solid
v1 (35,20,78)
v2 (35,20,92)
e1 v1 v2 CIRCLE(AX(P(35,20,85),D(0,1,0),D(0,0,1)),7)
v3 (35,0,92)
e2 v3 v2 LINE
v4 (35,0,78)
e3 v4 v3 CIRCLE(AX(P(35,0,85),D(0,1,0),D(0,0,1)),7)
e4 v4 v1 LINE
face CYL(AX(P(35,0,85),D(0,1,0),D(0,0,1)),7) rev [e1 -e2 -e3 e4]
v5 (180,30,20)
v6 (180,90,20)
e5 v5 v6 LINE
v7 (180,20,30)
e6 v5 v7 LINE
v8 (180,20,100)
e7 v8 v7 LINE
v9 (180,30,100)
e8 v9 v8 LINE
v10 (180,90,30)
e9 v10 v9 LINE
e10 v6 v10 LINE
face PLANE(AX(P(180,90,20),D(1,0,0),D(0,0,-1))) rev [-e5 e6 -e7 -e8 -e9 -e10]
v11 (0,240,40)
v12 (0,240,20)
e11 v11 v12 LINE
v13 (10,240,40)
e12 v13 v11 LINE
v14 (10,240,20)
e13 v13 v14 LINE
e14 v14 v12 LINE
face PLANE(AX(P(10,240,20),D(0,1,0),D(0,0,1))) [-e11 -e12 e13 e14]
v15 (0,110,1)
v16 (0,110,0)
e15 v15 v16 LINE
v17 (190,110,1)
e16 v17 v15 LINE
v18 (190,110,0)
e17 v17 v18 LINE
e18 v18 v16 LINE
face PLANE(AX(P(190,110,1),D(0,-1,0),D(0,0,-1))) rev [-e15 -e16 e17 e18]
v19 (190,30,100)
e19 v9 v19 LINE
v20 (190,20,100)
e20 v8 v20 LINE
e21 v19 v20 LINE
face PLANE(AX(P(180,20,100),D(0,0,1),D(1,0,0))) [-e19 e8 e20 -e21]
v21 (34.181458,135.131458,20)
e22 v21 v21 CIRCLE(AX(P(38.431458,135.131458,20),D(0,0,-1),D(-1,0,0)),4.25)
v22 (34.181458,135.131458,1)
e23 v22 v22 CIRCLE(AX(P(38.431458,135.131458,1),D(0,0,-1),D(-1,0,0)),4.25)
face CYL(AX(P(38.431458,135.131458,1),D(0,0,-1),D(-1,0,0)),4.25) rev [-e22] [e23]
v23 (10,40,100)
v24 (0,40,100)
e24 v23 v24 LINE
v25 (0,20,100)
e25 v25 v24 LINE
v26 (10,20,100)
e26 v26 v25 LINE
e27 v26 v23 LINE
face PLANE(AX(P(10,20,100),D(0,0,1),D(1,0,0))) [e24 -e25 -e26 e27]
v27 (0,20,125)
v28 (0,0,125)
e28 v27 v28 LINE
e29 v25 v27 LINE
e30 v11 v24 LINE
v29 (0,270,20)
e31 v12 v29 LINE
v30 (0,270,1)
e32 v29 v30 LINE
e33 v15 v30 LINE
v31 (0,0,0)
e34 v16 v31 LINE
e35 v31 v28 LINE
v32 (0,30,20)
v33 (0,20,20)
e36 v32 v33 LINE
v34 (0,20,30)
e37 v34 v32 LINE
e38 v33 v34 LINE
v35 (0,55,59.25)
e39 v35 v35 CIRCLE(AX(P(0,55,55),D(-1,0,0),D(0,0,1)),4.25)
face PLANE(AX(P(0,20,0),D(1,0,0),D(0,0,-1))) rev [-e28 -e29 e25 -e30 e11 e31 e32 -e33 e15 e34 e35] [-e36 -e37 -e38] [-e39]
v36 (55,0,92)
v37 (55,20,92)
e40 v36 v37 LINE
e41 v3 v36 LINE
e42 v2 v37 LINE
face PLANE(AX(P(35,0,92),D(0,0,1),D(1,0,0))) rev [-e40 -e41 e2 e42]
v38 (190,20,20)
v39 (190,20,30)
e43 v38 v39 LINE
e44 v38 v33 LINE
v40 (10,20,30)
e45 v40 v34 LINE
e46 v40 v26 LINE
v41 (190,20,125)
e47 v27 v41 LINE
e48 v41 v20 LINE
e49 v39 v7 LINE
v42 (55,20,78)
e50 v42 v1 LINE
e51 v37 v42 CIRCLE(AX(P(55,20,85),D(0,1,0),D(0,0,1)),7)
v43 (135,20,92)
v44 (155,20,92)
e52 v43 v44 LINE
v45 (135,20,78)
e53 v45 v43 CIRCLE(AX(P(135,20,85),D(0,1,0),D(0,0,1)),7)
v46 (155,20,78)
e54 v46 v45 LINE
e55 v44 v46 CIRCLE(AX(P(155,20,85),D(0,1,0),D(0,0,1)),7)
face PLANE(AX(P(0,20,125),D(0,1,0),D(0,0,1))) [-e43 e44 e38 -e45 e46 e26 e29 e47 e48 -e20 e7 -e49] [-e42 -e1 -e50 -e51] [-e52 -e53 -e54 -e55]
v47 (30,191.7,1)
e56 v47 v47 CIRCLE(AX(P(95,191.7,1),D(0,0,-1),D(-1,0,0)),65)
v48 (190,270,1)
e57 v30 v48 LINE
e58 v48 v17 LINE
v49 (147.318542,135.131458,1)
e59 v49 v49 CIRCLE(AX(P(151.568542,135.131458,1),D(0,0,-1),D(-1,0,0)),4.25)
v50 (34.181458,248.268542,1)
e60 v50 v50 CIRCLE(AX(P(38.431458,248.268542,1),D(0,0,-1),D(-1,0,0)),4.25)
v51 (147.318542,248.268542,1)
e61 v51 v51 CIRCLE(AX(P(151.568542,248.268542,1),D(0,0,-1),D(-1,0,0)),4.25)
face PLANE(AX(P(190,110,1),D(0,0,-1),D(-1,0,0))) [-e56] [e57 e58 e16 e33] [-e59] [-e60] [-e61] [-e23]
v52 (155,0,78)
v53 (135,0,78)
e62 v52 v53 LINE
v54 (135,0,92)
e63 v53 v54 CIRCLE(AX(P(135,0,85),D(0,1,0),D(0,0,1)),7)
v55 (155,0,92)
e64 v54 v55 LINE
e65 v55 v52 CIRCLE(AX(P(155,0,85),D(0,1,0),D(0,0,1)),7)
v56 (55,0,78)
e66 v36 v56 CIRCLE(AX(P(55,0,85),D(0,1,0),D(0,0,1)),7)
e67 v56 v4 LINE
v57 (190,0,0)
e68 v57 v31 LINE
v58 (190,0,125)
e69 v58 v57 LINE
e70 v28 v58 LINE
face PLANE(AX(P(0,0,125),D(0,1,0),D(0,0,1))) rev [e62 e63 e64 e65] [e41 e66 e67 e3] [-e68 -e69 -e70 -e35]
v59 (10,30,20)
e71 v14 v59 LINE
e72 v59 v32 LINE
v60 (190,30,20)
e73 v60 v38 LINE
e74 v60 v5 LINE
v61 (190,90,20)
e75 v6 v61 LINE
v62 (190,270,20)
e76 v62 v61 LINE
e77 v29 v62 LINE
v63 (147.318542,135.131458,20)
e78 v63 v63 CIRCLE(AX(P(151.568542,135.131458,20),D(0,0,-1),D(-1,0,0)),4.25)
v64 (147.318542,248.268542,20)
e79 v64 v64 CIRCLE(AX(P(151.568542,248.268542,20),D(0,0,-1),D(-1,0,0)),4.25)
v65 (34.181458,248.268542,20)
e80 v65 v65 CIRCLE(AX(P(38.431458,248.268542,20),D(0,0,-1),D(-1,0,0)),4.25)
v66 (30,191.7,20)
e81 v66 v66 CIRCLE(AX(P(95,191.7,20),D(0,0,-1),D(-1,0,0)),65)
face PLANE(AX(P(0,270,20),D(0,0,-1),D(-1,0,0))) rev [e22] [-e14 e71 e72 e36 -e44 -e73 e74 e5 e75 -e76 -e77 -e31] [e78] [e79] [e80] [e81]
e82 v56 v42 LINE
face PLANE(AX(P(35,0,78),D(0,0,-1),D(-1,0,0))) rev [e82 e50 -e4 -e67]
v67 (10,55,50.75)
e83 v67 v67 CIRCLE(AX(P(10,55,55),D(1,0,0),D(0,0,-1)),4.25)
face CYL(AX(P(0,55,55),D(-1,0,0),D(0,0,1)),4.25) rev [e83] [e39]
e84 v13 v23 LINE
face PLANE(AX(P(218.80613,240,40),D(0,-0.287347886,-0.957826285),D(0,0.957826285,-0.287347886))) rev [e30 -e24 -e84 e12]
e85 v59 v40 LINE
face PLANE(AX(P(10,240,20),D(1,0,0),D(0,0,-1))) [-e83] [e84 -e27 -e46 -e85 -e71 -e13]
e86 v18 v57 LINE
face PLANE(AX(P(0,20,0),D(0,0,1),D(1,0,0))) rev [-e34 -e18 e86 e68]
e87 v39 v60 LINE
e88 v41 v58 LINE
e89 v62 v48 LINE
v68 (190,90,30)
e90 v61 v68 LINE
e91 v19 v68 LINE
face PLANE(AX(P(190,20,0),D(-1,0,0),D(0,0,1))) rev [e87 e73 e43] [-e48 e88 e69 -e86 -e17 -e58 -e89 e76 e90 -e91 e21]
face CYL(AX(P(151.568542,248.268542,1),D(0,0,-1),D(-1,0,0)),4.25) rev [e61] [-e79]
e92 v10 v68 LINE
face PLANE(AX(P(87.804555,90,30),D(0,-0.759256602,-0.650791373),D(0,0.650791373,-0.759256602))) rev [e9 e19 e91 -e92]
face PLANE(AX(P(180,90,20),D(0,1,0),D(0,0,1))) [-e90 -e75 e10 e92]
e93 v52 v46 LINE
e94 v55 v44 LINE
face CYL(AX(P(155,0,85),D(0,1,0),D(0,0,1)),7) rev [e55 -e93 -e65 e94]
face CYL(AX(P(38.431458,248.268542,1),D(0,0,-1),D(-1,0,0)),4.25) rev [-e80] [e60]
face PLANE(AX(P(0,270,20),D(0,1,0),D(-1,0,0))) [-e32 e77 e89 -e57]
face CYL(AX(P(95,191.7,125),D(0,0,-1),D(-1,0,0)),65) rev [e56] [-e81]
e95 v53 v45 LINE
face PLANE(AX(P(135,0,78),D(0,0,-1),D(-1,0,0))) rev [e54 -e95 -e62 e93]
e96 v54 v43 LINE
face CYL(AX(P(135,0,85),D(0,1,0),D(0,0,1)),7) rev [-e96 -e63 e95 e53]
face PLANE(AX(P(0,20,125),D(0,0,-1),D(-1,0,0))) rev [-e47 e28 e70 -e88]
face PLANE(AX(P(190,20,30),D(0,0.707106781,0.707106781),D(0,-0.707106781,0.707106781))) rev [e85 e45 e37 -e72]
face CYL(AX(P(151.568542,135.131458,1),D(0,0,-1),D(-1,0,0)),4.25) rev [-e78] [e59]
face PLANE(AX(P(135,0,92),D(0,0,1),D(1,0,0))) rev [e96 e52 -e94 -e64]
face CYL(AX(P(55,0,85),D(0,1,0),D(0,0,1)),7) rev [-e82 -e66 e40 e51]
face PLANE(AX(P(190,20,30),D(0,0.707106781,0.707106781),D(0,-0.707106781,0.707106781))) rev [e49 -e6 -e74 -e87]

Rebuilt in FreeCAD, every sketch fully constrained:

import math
import FreeCAD as App
import Part
import Sketcher
from FreeCAD import Vector
Q = App.Units.Quantity


def add_polygon(sketch, points):
    """Adds a closed chain of lines whose ends are joined by coincident constraints."""
    first, n = sketch.GeometryCount, len(points)
    for a, b in zip(points, points[1:] + points[:1]):
        sketch.addGeometry(Part.LineSegment(App.Vector(*a, 0), App.Vector(*b, 0)), False)
    for i in range(n):
        sketch.addConstraint(Sketcher.Constraint("Coincident", first + i, 2, first + (i + 1) % n, 1))

doc = App.newDocument("Part")
body = doc.addObject("PartDesign::Body", "Body")

sketch1 = body.newObject("Sketcher::SketchObject", "Sketch")
sketch1.AttachmentSupport = (doc.getObject("XZ_Plane"), [""])
sketch1.MapMode = "FlatFace"
add_polygon(sketch1, [(0, 0), (0, 125), (190, 125), (190, 0)])
sketch1.addConstraint(Sketcher.Constraint("Vertical", 0))
sketch1.addConstraint(Sketcher.Constraint("Horizontal", 1))
sketch1.addConstraint(Sketcher.Constraint("Vertical", 2))
sketch1.addConstraint(Sketcher.Constraint("Horizontal", 3))
sketch1.addConstraint(Sketcher.Constraint("Coincident", 3, 2, -1, 1))
sketch1.addConstraint(Sketcher.Constraint("DistanceX", 1, 1, 1, 2, Q("190 mm")))
sketch1.addConstraint(Sketcher.Constraint("DistanceY", 0, 1, 0, 2, Q("125 mm")))
pad1 = body.newObject("PartDesign::Pad", "Pad")
pad1.Profile = sketch1
pad1.Length = 20
pad1.Reversed = True

sketch2 = body.newObject("Sketcher::SketchObject", "Sketch001")
sketch2.AttachmentSupport = (doc.getObject("XY_Plane"), [""])
sketch2.MapMode = "FlatFace"
add_polygon(sketch2, [(190, 270), (190, 20), (0, 20), (0, 270)])
sketch2.addConstraint(Sketcher.Constraint("Vertical", 0))
sketch2.addConstraint(Sketcher.Constraint("Horizontal", 1))
sketch2.addConstraint(Sketcher.Constraint("Vertical", 2))
sketch2.addConstraint(Sketcher.Constraint("Horizontal", 3))
sketch2.addConstraint(Sketcher.Constraint("PointOnObject", 1, 2, -2))
sketch2.addConstraint(Sketcher.Constraint("DistanceX", 1, 2, 1, 1, Q("190 mm")))
sketch2.addConstraint(Sketcher.Constraint("DistanceY", 0, 2, 0, 1, Q("250 mm")))
sketch2.addConstraint(Sketcher.Constraint("DistanceY", -1, 1, 0, 2, Q("20 mm")))
pad2 = body.newObject("PartDesign::Pad", "Pad001")
pad2.Profile = sketch2
pad2.Length = 20

sketch3 = body.newObject("Sketcher::SketchObject", "Sketch002")
sketch3.AttachmentSupport = (doc.getObject("YZ_Plane"), [""])
sketch3.MapMode = "FlatFace"
add_polygon(sketch3, [(240, 20), (20, 20), (20, 100), (240, 100)])
sketch3.addConstraint(Sketcher.Constraint("Horizontal", 0))
sketch3.addConstraint(Sketcher.Constraint("Vertical", 1))
sketch3.addConstraint(Sketcher.Constraint("Horizontal", 2))
sketch3.addConstraint(Sketcher.Constraint("Vertical", 3))
sketch3.addConstraint(Sketcher.Constraint("DistanceX", 0, 2, 0, 1, Q("220 mm")))
sketch3.addConstraint(Sketcher.Constraint("DistanceY", 1, 1, 1, 2, Q("80 mm")))
sketch3.addConstraint(Sketcher.Constraint("DistanceX", -1, 1, 0, 2, Q("20 mm")))
sketch3.addConstraint(Sketcher.Constraint("DistanceY", -1, 1, 0, 2, Q("20 mm")))
pad3 = body.newObject("PartDesign::Pad", "Pad002")
pad3.Profile = sketch3
pad3.Length = 10

sketch4 = body.newObject("Sketcher::SketchObject", "Sketch003")
sketch4.AttachmentSupport = (doc.getObject("YZ_Plane"), [""])
sketch4.MapMode = "FlatFace"
sketch4.AttachmentOffset = App.Placement(Vector(0, 0, 190), App.Rotation())
add_polygon(sketch4, [(90, 100), (20, 100), (20, 20), (90, 20)])
sketch4.addConstraint(Sketcher.Constraint("Horizontal", 0))
sketch4.addConstraint(Sketcher.Constraint("Vertical", 1))
sketch4.addConstraint(Sketcher.Constraint("Horizontal", 2))
sketch4.addConstraint(Sketcher.Constraint("Vertical", 3))
sketch4.addConstraint(Sketcher.Constraint("DistanceX", 0, 2, 0, 1, Q("70 mm")))
sketch4.addConstraint(Sketcher.Constraint("DistanceY", 1, 2, 1, 1, Q("80 mm")))
sketch4.addConstraint(Sketcher.Constraint("DistanceX", -1, 1, 0, 2, Q("20 mm")))
sketch4.addConstraint(Sketcher.Constraint("DistanceY", -1, 1, 0, 2, Q("100 mm")))
pad4 = body.newObject("PartDesign::Pad", "Pad003")
pad4.Profile = sketch4
pad4.Length = 10
pad4.Reversed = True

sketch5 = body.newObject("Sketcher::SketchObject", "Sketch004")
sketch5.AttachmentSupport = (doc.getObject("YZ_Plane"), [""])
sketch5.MapMode = "FlatFace"
add_polygon(sketch5, [(30, 20), (20, 20), (20, 30)])
sketch5.addConstraint(Sketcher.Constraint("Horizontal", 0))
sketch5.addConstraint(Sketcher.Constraint("Vertical", 1))
sketch5.addConstraint(Sketcher.Constraint("Equal", 0, 1))
sketch5.addConstraint(Sketcher.Constraint("DistanceX", 0, 2, 0, 1, Q("10 mm")))
sketch5.addConstraint(Sketcher.Constraint("DistanceX", -1, 1, 0, 2, Q("20 mm")))
sketch5.addConstraint(Sketcher.Constraint("DistanceY", -1, 1, 0, 2, Q("20 mm")))
pocket1 = body.newObject("PartDesign::Pocket", "Pocket")
pocket1.Profile = sketch5
pocket1.Type = "ThroughAll"
pocket1.Reversed = True

sketch6 = body.newObject("Sketcher::SketchObject", "Sketch005")
sketch6.AttachmentSupport = (doc.getObject("YZ_Plane"), [""])
sketch6.MapMode = "FlatFace"
add_polygon(sketch6, [(240, 40), (40, 100), (240, 100)])
sketch6.addConstraint(Sketcher.Constraint("Horizontal", 1))
sketch6.addConstraint(Sketcher.Constraint("Vertical", 2))
sketch6.addConstraint(Sketcher.Constraint("DistanceX", 1, 1, 1, 2, Q("200 mm")))
sketch6.addConstraint(Sketcher.Constraint("DistanceY", 2, 2, 2, 1, Q("60 mm")))
sketch6.addConstraint(Sketcher.Constraint("DistanceX", -1, 1, 0, 2, Q("40 mm")))
sketch6.addConstraint(Sketcher.Constraint("DistanceY", -1, 1, 0, 2, Q("100 mm")))
pocket2 = body.newObject("PartDesign::Pocket", "Pocket001")
pocket2.Profile = sketch6
pocket2.Length = 10
pocket2.Reversed = True

sketch7 = body.newObject("Sketcher::SketchObject", "Sketch006")
sketch7.AttachmentSupport = (doc.getObject("YZ_Plane"), [""])
sketch7.MapMode = "FlatFace"
sketch7.AttachmentOffset = App.Placement(Vector(0, 0, 190), App.Rotation())
add_polygon(sketch7, [(90, 30), (90, 100), (30, 100)])
sketch7.addConstraint(Sketcher.Constraint("Vertical", 0))
sketch7.addConstraint(Sketcher.Constraint("Horizontal", 1))
sketch7.addConstraint(Sketcher.Constraint("DistanceX", 1, 2, 1, 1, Q("60 mm")))
sketch7.addConstraint(Sketcher.Constraint("DistanceY", 0, 1, 0, 2, Q("70 mm")))
sketch7.addConstraint(Sketcher.Constraint("DistanceX", -1, 1, 0, 2, Q("90 mm")))
sketch7.addConstraint(Sketcher.Constraint("DistanceY", -1, 1, 0, 2, Q("100 mm")))
pocket3 = body.newObject("PartDesign::Pocket", "Pocket002")
pocket3.Profile = sketch7
pocket3.Length = 10

sketch8 = body.newObject("Sketcher::SketchObject", "Sketch007")
sketch8.AttachmentSupport = (doc.getObject("XY_Plane"), [""])
sketch8.MapMode = "FlatFace"
add_polygon(sketch8, [(190, 270), (190, 110), (0, 110), (0, 270)])
sketch8.addConstraint(Sketcher.Constraint("Vertical", 0))
sketch8.addConstraint(Sketcher.Constraint("Horizontal", 1))
sketch8.addConstraint(Sketcher.Constraint("Vertical", 2))
sketch8.addConstraint(Sketcher.Constraint("Horizontal", 3))
sketch8.addConstraint(Sketcher.Constraint("PointOnObject", 1, 2, -2))
sketch8.addConstraint(Sketcher.Constraint("DistanceX", 1, 2, 1, 1, Q("190 mm")))
sketch8.addConstraint(Sketcher.Constraint("DistanceY", 0, 2, 0, 1, Q("160 mm")))
sketch8.addConstraint(Sketcher.Constraint("DistanceY", -1, 1, 0, 2, Q("110 mm")))
pocket4 = body.newObject("PartDesign::Pocket", "Pocket003")
pocket4.Profile = sketch8
pocket4.Length = 1
pocket4.Reversed = True

sketch9 = body.newObject("Sketcher::SketchObject", "Sketch008")
sketch9.AttachmentSupport = (doc.getObject("XY_Plane"), [""])
sketch9.MapMode = "FlatFace"
sketch9.AttachmentOffset = App.Placement(Vector(0, 0, 1), App.Rotation())
sketch9.addGeometry(Part.Circle(Vector(95, 191.7, 0), Vector(0, 0, 1), 65), False)
sketch9.addConstraint(Sketcher.Constraint("Diameter", 0, Q("130 mm")))
sketch9.addConstraint(Sketcher.Constraint("DistanceX", -1, 1, 0, 3, Q("95 mm")))
sketch9.addConstraint(Sketcher.Constraint("DistanceY", -1, 1, 0, 3, Q("191.7 mm")))
pocket5 = body.newObject("PartDesign::Pocket", "Pocket004")
pocket5.Profile = sketch9
pocket5.Type = "ThroughAll"
pocket5.Reversed = True

sketch10 = body.newObject("Sketcher::SketchObject", "Sketch009")
sketch10.AttachmentSupport = (doc.getObject("XZ_Plane"), [""])
sketch10.MapMode = "FlatFace"
sketch10.AttachmentOffset = App.Placement(Vector(0, 0, -20), App.Rotation())
sketch10.addGeometry(Part.LineSegment(Vector(55, 78, 0), Vector(35, 78, 0)), False)
sketch10.addGeometry(Part.ArcOfCircle(Part.Circle(Vector(35, 85, 0), Vector(0, 0, 1), 7), math.radians(90), math.radians(270)), False)
sketch10.addGeometry(Part.LineSegment(Vector(35, 92, 0), Vector(55, 92, 0)), False)
sketch10.addGeometry(Part.ArcOfCircle(Part.Circle(Vector(55, 85, 0), Vector(0, 0, 1), 7), math.radians(-90), math.radians(90)), False)
sketch10.addGeometry(Part.LineSegment(Vector(155, 78, 0), Vector(135, 78, 0)), False)
sketch10.addGeometry(Part.ArcOfCircle(Part.Circle(Vector(135, 85, 0), Vector(0, 0, 1), 7), math.radians(90), math.radians(270)), False)
sketch10.addGeometry(Part.LineSegment(Vector(135, 92, 0), Vector(155, 92, 0)), False)
sketch10.addGeometry(Part.ArcOfCircle(Part.Circle(Vector(155, 85, 0), Vector(0, 0, 1), 7), math.radians(-90), math.radians(90)), False)
sketch10.addConstraint(Sketcher.Constraint("Tangent", 0, 2, 1, 2))
sketch10.addConstraint(Sketcher.Constraint("Tangent", 1, 1, 2, 1))
sketch10.addConstraint(Sketcher.Constraint("Tangent", 2, 2, 3, 2))
sketch10.addConstraint(Sketcher.Constraint("Tangent", 3, 1, 0, 1))
sketch10.addConstraint(Sketcher.Constraint("Tangent", 4, 2, 5, 2))
sketch10.addConstraint(Sketcher.Constraint("Tangent", 5, 1, 6, 1))
sketch10.addConstraint(Sketcher.Constraint("Tangent", 6, 2, 7, 2))
sketch10.addConstraint(Sketcher.Constraint("Tangent", 7, 1, 4, 1))
sketch10.addConstraint(Sketcher.Constraint("Horizontal", 0))
sketch10.addConstraint(Sketcher.Constraint("Horizontal", 2))
sketch10.addConstraint(Sketcher.Constraint("Horizontal", 4))
sketch10.addConstraint(Sketcher.Constraint("Horizontal", 6))
sketch10.addConstraint(Sketcher.Constraint("Equal", 3, 5))
sketch10.addConstraint(Sketcher.Constraint("Horizontal", 3, 3, 5, 3))
sketch10.addConstraint(Sketcher.Constraint("Equal", 2, 4))
sketch10.addConstraint(Sketcher.Constraint("Radius", 1, Q("7 mm")))
sketch10.addConstraint(Sketcher.Constraint("DistanceX", 0, 2, 0, 1, Q("20 mm")))
sketch10.addConstraint(Sketcher.Constraint("DistanceX", -1, 1, 1, 3, Q("35 mm")))
sketch10.addConstraint(Sketcher.Constraint("DistanceY", -1, 1, 1, 3, Q("85 mm")))
sketch10.addConstraint(Sketcher.Constraint("DistanceX", -1, 1, 5, 3, Q("135 mm")))
pocket6 = body.newObject("PartDesign::Pocket", "Pocket005")
pocket6.Profile = sketch10
pocket6.Type = "ThroughAll"
pocket6.Reversed = True

sketch11 = body.newObject("Sketcher::SketchObject", "Sketch010")
sketch11.AttachmentSupport = (doc.getObject("XY_Plane"), [""])
sketch11.MapMode = "FlatFace"
sketch11.AttachmentOffset = App.Placement(Vector(0, 0, 1), App.Rotation())
sketch11.addGeometry(Part.Circle(Vector(38.431458, 248.268542, 0), Vector(0, 0, 1), 4.25), False)
sketch11.addGeometry(Part.Circle(Vector(151.568542, 248.268542, 0), Vector(0, 0, 1), 4.25), False)
sketch11.addGeometry(Part.Circle(Vector(151.568542, 135.131458, 0), Vector(0, 0, 1), 4.25), False)
sketch11.addGeometry(Part.Circle(Vector(38.431458, 135.131458, 0), Vector(0, 0, 1), 4.25), False)
sketch11.addConstraint(Sketcher.Constraint("Equal", 0, 1))
sketch11.addConstraint(Sketcher.Constraint("Equal", 1, 2))
sketch11.addConstraint(Sketcher.Constraint("Equal", 2, 3))
sketch11.addConstraint(Sketcher.Constraint("Horizontal", 0, 3, 1, 3))
sketch11.addConstraint(Sketcher.Constraint("Horizontal", 2, 3, 3, 3))
sketch11.addConstraint(Sketcher.Constraint("Vertical", 1, 3, 2, 3))
sketch11.addConstraint(Sketcher.Constraint("Vertical", 0, 3, 3, 3))
sketch11.addConstraint(Sketcher.Constraint("Diameter", 0, Q("8.5 mm")))
sketch11.addConstraint(Sketcher.Constraint("DistanceX", -1, 1, 0, 3, Q("38.431458 mm")))
sketch11.addConstraint(Sketcher.Constraint("DistanceY", -1, 1, 0, 3, Q("248.268542 mm")))
sketch11.addConstraint(Sketcher.Constraint("DistanceX", -1, 1, 1, 3, Q("151.568542 mm")))
sketch11.addConstraint(Sketcher.Constraint("DistanceY", -1, 1, 2, 3, Q("135.131458 mm")))
doc.recompute()
hole = body.newObject("PartDesign::Hole", "Hole")
hole.Profile = sketch11
hole.ThreadType = "None"
hole.Diameter = 8.5
hole.DepthType = "ThroughAll"
hole.Reversed = True

sketch12 = body.newObject("Sketcher::SketchObject", "Sketch011")
sketch12.AttachmentSupport = (doc.getObject("YZ_Plane"), [""])
sketch12.MapMode = "FlatFace"
sketch12.addGeometry(Part.Circle(Vector(55, 55, 0), Vector(0, 0, 1), 4.25), False)
sketch12.addConstraint(Sketcher.Constraint("Diameter", 0, Q("8.5 mm")))
sketch12.addConstraint(Sketcher.Constraint("DistanceX", -1, 1, 0, 3, Q("55 mm")))
sketch12.addConstraint(Sketcher.Constraint("DistanceY", -1, 1, 0, 3, Q("55 mm")))
doc.recompute()
hole2 = body.newObject("PartDesign::Hole", "Hole001")
hole2.Profile = sketch12
hole2.ThreadType = "None"
hole2.Diameter = 8.5
hole2.DepthType = "Dimension"
hole2.Depth = 10
hole2.DrillPoint = "Flat"
hole2.Reversed = True

doc.recompute()
